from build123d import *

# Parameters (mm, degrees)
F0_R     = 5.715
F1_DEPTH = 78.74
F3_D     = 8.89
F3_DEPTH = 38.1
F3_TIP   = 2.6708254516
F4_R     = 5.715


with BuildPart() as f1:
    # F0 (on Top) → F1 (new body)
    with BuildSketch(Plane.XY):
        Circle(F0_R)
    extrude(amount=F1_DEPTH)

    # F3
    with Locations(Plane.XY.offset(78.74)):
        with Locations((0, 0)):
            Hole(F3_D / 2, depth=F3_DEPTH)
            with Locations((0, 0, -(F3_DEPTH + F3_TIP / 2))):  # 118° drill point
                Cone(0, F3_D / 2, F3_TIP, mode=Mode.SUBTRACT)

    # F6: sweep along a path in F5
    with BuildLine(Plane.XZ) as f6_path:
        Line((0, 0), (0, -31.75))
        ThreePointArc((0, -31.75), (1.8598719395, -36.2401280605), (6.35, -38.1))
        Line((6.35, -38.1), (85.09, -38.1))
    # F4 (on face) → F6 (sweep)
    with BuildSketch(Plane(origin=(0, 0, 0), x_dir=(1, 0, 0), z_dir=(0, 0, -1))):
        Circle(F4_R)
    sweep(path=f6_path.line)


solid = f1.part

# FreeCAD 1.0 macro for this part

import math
import FreeCAD as App
import Part
import Sketcher
from FreeCAD import Vector
Q = App.Units.Quantity

doc = App.newDocument("Part")
params = doc.addObject("Spreadsheet::Sheet", "Params")
for row, (alias, value) in enumerate([
    ("sketch1_diameter", "0.45 in"),
    ("pad1_length", "3.1 in"),
    ("sketch2_diameter", "0.35 in"),
    ("hole_diameter", "0.35 in"),
    ("hole_depth", "1.5 in"),
    ("sketch3_diameter", "0.45 in"),
    ("sketch4_radius", "0.25 in"),
    ("sketch4_width", "3.1 in"),
    ("sketch4_height", "1.25 in"),
], start=1):
    params.set(f"A{row}", alias)
    params.set(f"B{row}", "=" + value)
    params.setAlias(f"B{row}", alias)

body = doc.addObject("PartDesign::Body", "Body")

# Sketch on XY plane
sketch1 = doc.addObject("Sketcher::SketchObject", "Sketch")
body.addObject(sketch1)
sketch1.AttachmentSupport = (doc.XY_Plane, [""])
sketch1.MapMode = "FlatFace"
sketch1.addGeometry(Part.Circle(Vector(0, 0, 0), Vector(0, 0, 1), 6), False)
sketch1.addConstraint(Sketcher.Constraint("Coincident", 0, 3, -1, 1))
sketch1.addConstraint(Sketcher.Constraint("Diameter", 0, Q("0.45 in")))
sketch1.setExpression("Constraints[1]", "Params.sketch1_diameter")
pad1 = doc.addObject("PartDesign::Pad", "Pad")
body.addObject(pad1)
pad1.Profile = sketch1
pad1.setExpression("Length", "Params.pad1_length")

# Sketch on XY plane
sketch2 = doc.addObject("Sketcher::SketchObject", "Sketch001")
body.addObject(sketch2)
sketch2.AttachmentSupport = (doc.XY_Plane, [""])
sketch2.MapMode = "FlatFace"
sketch2.AttachmentOffset = App.Placement(Vector(0, 0, 3.1 * 25.4), App.Rotation())
sketch2.addGeometry(Part.Circle(Vector(0, 0, 0), Vector(0, 0, 1), 4.4), False)
sketch2.addConstraint(Sketcher.Constraint("Coincident", 0, 3, -1, 1))
sketch2.addConstraint(Sketcher.Constraint("Diameter", 0, Q("0.35 in")))
sketch2.setExpression("Constraints[1]", "Params.sketch2_diameter")
doc.recompute()
hole = doc.addObject("PartDesign::Hole", "Hole")
body.addObject(hole)
hole.Profile = sketch2
hole.ThreadType = "None"
hole.setExpression("Diameter", "Params.hole_diameter")
hole.DepthType = "Dimension"
hole.setExpression("Depth", "Params.hole_depth")
hole.DrillPoint = "Angled"
hole.DrillPointAngle = 118

# Sketch on XY plane
sketch3 = doc.addObject("Sketcher::SketchObject", "Sketch002")
body.addObject(sketch3)
sketch3.AttachmentSupport = (doc.XY_Plane, [""])
sketch3.MapMode = "FlatFace"
sketch3.addGeometry(Part.Circle(Vector(0, 0, 0), Vector(0, 0, 1), 6), False)
sketch3.addConstraint(Sketcher.Constraint("Coincident", 0, 3, -1, 1))
sketch3.addConstraint(Sketcher.Constraint("Diameter", 0, Q("0.45 in")))
sketch3.setExpression("Constraints[1]", "Params.sketch3_diameter")

# Sketch on XZ plane
sketch4 = doc.addObject("Sketcher::SketchObject", "Sketch003")
body.addObject(sketch4)
sketch4.AttachmentSupport = (doc.XZ_Plane, [""])
sketch4.MapMode = "FlatFace"
sketch4.addGeometry(Part.LineSegment(Vector(0, 0, 0), Vector(0, -32, 0)), False)
sketch4.addGeometry(Part.ArcOfCircle(Part.Circle(Vector(6, -32, 0), Vector(0, 0, 1), 6), math.radians(180), math.radians(270)), False)
sketch4.addGeometry(Part.LineSegment(Vector(6, -38, 0), Vector(85, -38, 0)), False)
sketch4.addConstraint(Sketcher.Constraint("Tangent", 0, 2, 1, 1))
sketch4.addConstraint(Sketcher.Constraint("Tangent", 1, 2, 2, 1))
sketch4.addConstraint(Sketcher.Constraint("Vertical", 0))
sketch4.addConstraint(Sketcher.Constraint("Horizontal", 2))
sketch4.addConstraint(Sketcher.Constraint("Coincident", 0, 1, -1, 1))
sketch4.addConstraint(Sketcher.Constraint("Radius", 1, Q("0.25 in")))
sketch4.addConstraint(Sketcher.Constraint("DistanceX", 2, 1, 2, 2, Q("3.1 in")))
sketch4.addConstraint(Sketcher.Constraint("DistanceY", 0, 2, 0, 1, Q("1.25 in")))
sketch4.setExpression("Constraints[5]", "Params.sketch4_radius")
sketch4.setExpression("Constraints[6]", "Params.sketch4_width")
sketch4.setExpression("Constraints[7]", "Params.sketch4_height")
doc.recompute()

additivepipe = doc.addObject("PartDesign::AdditivePipe", "AdditivePipe")
body.addObject(additivepipe)
additivepipe.Profile = sketch3
additivepipe.Spine = (sketch4, ["Edge1", "Edge2", "Edge3"])

doc.recompute()
